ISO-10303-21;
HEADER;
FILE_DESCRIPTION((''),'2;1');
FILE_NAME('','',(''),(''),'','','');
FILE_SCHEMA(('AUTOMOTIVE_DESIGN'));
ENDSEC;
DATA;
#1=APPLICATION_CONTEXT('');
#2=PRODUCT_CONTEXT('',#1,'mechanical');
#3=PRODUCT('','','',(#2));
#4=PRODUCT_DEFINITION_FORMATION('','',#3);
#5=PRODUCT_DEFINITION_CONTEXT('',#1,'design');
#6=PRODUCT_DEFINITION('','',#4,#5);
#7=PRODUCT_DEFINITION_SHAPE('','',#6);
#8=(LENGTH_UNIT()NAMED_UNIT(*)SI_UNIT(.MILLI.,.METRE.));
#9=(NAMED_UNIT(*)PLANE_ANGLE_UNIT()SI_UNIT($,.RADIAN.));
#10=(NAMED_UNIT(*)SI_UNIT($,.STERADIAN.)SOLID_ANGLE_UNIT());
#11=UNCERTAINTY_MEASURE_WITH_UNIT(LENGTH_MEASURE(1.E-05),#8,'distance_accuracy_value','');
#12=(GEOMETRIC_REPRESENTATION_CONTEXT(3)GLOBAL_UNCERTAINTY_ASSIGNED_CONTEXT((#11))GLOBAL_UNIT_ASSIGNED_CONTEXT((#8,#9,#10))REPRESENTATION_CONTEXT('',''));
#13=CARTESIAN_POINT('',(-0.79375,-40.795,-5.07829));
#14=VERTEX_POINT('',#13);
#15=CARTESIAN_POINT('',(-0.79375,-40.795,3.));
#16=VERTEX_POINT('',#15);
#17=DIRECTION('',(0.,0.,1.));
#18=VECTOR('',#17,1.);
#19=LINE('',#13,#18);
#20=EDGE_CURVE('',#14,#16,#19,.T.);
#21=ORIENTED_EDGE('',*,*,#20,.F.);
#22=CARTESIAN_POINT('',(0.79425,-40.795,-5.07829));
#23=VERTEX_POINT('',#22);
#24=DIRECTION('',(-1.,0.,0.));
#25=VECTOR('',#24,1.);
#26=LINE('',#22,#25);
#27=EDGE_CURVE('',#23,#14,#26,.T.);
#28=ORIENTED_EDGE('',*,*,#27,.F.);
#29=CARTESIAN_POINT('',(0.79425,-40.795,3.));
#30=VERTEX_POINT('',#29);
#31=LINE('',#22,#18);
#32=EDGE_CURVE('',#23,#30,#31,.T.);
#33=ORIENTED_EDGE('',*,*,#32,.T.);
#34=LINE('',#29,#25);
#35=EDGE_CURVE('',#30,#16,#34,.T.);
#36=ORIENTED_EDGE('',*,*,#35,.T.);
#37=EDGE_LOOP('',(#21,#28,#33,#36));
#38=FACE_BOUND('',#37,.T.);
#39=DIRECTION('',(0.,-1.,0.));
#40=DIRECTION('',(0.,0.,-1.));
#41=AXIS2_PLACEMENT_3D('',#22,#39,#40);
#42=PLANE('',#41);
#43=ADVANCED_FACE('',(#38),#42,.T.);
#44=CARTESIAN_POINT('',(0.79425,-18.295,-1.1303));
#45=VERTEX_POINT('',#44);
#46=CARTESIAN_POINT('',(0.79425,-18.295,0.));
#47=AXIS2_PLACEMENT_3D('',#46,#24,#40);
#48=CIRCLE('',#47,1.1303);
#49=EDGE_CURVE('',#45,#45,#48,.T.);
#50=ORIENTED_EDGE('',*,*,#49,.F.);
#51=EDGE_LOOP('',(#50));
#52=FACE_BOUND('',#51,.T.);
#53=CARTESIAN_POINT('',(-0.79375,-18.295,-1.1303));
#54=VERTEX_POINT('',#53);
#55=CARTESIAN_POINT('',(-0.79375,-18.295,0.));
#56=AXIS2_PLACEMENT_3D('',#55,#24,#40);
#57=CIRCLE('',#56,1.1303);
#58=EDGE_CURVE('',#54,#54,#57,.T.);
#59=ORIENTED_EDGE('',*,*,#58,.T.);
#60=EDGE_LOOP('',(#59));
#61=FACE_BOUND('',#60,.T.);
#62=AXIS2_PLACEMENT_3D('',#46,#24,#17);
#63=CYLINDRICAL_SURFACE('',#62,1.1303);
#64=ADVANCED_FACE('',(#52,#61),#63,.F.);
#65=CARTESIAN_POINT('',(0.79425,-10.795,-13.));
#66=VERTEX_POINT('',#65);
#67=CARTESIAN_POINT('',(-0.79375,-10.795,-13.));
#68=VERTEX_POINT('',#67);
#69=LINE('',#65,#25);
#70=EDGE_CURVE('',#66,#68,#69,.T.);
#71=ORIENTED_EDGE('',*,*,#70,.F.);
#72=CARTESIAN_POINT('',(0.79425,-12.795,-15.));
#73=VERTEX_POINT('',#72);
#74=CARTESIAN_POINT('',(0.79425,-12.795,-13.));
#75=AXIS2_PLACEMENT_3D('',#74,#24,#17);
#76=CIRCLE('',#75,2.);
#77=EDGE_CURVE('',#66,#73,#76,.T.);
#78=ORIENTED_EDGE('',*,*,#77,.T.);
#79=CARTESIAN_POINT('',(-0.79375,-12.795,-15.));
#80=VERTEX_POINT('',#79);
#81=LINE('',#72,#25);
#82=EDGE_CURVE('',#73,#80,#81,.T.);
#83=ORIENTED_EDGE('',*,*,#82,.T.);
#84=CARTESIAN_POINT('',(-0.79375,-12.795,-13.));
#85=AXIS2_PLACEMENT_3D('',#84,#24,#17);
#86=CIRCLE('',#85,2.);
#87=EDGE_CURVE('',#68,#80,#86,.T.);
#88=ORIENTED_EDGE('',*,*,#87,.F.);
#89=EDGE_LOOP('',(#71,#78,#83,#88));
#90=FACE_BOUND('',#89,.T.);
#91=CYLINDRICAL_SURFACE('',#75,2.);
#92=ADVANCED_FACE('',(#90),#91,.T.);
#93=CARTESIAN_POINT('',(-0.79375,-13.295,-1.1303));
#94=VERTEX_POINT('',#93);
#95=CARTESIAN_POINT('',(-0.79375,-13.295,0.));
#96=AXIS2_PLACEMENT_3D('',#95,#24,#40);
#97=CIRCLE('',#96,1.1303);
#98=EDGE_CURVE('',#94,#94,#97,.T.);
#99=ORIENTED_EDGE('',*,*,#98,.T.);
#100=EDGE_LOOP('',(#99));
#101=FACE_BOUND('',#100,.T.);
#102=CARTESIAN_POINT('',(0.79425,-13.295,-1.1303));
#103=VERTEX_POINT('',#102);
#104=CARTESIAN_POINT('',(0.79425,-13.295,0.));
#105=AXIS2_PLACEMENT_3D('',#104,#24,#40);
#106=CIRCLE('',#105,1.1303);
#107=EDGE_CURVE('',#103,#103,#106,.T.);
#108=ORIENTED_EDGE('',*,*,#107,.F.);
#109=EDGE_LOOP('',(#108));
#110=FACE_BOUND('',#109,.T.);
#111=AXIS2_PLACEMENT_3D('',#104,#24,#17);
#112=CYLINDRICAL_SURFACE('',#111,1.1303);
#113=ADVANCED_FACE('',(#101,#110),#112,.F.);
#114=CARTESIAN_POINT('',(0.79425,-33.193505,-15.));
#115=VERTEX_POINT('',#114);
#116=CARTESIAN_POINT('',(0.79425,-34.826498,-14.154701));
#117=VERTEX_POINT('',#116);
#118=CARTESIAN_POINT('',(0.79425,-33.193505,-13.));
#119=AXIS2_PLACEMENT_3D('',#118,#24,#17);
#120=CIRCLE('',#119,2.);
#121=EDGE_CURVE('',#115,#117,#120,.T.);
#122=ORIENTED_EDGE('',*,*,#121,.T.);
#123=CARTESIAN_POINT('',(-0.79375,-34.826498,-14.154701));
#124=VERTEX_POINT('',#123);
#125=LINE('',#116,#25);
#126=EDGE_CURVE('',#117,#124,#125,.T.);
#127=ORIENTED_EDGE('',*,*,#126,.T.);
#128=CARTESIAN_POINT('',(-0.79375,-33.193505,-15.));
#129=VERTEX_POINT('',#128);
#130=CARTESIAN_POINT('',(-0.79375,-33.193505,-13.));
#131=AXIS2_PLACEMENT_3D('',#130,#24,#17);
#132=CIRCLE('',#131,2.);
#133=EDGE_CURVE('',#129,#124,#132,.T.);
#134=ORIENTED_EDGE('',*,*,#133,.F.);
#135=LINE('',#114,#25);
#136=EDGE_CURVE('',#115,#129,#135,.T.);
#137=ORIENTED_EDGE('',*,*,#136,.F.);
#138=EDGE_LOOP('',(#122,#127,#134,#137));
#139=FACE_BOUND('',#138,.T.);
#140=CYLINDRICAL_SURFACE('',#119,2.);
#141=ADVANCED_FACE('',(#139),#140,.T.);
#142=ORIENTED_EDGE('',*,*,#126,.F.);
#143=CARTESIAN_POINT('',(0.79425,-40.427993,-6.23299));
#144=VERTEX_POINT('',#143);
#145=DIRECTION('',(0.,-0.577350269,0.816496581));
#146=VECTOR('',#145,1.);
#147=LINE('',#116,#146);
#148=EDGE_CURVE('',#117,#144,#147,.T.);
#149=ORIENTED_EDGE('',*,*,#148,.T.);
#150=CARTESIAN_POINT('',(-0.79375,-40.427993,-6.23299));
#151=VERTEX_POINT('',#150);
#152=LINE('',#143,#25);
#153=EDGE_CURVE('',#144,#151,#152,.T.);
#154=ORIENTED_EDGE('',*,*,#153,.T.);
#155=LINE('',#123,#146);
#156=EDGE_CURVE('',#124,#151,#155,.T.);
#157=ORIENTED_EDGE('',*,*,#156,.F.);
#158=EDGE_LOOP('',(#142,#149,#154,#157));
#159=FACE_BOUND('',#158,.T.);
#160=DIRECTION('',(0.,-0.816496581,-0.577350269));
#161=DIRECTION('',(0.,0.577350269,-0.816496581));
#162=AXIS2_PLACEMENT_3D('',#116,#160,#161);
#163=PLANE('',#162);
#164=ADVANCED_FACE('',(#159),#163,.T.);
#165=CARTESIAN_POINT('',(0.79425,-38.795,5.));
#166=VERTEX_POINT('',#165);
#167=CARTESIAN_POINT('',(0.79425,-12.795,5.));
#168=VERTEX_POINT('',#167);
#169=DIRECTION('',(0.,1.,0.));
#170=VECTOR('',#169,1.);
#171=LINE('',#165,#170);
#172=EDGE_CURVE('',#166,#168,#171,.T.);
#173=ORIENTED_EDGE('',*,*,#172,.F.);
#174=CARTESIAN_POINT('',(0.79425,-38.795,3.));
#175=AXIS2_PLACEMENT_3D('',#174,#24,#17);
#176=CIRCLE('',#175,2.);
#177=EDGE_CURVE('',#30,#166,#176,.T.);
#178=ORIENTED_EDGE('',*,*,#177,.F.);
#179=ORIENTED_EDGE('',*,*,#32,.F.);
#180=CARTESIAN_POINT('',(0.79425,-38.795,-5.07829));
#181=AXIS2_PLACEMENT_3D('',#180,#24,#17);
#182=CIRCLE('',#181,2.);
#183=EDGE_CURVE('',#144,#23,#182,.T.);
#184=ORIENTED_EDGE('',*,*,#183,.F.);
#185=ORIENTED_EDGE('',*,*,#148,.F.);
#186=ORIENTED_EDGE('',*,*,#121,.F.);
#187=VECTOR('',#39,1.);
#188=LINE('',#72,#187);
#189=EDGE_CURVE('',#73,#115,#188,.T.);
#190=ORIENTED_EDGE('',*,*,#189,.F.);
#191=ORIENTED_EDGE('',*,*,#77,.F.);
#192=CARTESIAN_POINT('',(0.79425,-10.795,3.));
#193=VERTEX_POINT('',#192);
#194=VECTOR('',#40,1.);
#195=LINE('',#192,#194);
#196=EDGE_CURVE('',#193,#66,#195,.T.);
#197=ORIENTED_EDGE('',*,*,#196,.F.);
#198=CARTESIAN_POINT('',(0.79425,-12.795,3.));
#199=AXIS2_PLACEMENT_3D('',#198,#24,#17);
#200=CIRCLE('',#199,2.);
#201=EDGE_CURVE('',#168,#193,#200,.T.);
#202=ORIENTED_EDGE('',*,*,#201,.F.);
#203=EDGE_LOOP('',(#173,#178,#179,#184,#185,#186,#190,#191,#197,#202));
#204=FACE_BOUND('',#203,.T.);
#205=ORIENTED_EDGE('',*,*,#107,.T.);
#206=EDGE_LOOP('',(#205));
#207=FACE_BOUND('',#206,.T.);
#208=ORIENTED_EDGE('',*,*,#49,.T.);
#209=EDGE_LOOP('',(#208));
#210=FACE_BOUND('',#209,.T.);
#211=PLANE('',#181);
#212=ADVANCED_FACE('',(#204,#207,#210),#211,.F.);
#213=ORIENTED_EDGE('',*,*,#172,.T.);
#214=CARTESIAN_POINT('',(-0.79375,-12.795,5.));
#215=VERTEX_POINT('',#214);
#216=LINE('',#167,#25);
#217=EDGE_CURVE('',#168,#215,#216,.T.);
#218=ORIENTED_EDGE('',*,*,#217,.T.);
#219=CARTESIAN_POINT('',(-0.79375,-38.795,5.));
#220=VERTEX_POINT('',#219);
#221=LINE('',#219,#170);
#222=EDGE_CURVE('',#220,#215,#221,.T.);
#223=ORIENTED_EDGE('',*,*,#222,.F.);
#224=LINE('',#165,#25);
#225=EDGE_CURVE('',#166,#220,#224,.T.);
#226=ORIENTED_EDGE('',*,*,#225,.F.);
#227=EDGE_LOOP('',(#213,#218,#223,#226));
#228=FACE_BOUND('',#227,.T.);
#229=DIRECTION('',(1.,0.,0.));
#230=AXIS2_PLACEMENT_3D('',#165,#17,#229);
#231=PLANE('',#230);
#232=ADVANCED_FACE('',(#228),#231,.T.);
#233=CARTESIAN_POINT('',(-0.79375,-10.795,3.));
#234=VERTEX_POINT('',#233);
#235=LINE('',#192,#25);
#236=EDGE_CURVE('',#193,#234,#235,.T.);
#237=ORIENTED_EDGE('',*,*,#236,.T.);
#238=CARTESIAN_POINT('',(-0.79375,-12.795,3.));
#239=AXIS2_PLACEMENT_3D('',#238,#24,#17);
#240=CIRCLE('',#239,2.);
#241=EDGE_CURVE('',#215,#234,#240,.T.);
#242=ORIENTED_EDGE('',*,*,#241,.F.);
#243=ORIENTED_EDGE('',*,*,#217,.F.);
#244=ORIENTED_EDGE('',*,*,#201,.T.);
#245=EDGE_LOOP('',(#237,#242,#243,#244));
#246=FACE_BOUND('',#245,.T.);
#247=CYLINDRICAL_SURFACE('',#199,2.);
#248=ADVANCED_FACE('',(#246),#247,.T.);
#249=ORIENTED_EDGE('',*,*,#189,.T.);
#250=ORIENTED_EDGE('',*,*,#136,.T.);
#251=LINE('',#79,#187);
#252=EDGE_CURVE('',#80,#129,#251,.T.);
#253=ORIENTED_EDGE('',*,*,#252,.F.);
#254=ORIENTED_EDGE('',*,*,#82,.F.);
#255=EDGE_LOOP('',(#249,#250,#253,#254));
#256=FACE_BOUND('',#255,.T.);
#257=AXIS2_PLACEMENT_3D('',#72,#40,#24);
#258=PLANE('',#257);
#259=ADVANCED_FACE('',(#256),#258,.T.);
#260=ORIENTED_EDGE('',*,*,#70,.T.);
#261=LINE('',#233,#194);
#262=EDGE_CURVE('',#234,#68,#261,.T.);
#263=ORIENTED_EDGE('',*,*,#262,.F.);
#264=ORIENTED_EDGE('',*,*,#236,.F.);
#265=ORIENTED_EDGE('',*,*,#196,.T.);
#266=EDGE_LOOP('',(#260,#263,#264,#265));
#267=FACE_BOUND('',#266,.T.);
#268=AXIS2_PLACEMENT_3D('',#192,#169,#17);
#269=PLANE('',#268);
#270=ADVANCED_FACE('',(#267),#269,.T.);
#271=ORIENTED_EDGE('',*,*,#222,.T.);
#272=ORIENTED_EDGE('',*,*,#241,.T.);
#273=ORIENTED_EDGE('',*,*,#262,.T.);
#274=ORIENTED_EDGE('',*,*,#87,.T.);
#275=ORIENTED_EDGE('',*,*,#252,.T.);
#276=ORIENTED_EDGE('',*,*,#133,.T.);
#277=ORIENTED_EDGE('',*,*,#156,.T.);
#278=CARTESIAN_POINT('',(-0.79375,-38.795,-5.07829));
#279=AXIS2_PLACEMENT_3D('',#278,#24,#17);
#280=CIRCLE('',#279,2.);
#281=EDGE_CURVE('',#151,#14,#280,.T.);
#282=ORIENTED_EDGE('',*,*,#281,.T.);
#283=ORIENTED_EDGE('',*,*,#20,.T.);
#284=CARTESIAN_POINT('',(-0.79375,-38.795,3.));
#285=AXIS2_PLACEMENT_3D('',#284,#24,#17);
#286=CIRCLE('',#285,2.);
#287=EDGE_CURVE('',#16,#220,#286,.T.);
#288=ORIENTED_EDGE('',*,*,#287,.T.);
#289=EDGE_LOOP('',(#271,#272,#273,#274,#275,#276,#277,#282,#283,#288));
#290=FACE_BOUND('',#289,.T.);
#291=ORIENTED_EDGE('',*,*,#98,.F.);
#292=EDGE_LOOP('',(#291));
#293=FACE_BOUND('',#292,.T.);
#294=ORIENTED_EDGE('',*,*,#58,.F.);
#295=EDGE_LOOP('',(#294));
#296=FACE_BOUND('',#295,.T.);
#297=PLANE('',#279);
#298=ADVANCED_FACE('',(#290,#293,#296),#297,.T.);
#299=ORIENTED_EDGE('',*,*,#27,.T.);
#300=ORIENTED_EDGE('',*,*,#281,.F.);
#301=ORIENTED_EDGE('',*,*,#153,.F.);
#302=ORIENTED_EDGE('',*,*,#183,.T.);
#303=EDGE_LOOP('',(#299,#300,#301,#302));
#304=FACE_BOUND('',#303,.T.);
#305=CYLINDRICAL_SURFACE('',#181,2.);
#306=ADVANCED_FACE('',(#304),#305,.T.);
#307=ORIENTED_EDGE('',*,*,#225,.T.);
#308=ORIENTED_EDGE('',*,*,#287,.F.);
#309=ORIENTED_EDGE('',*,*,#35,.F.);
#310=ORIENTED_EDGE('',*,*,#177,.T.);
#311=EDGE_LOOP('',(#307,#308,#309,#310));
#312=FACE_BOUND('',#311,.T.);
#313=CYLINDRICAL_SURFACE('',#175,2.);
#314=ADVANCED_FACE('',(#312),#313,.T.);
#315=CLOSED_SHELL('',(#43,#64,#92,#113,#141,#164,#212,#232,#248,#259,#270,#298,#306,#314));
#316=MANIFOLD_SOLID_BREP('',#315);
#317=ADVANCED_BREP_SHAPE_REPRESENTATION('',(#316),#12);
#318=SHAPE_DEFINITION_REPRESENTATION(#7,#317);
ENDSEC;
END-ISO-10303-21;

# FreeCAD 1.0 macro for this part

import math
import FreeCAD as App
import Part
import Sketcher
Q = App.Units.Quantity

doc = App.newDocument("Part")
body = doc.addObject("PartDesign::Body", "Body")

# Sketch on YZ plane
sketch1 = body.newObject("Sketcher::SketchObject", "Sketch")
sketch1.AttachmentSupport = (doc.getObject("YZ_Plane"), [""])
sketch1.MapMode = "FlatFace"
sketch1.AttachmentOffset = App.Placement(App.Vector(0, 0, -0.79375), App.Rotation())
sketch1.addGeometry([
    Part.LineSegment(App.Vector(-40.795, -5.07829, 0), App.Vector(-40.795, 3, 0)),  # 0
    Part.ArcOfCircle(Part.Circle(App.Vector(-38.795, 3, 0), App.Vector(0, 0, 1), 2), math.radians(90), math.radians(180)),  # 1
    Part.LineSegment(App.Vector(-38.795, 5, 0), App.Vector(-12.795, 5, 0)),  # 2
    Part.ArcOfCircle(Part.Circle(App.Vector(-12.795, 3, 0), App.Vector(0, 0, 1), 2), math.radians(0), math.radians(90)),  # 3
    Part.LineSegment(App.Vector(-10.795, 3, 0), App.Vector(-10.795, -13, 0)),  # 4
    Part.ArcOfCircle(Part.Circle(App.Vector(-12.795, -13, 0), App.Vector(0, 0, 1), 2), math.radians(-90), math.radians(0)),  # 5
    Part.LineSegment(App.Vector(-12.795, -15, 0), App.Vector(-33.193505, -15, 0)),  # 6
    Part.ArcOfCircle(Part.Circle(App.Vector(-33.193505, -13, 0), App.Vector(0, 0, 1), 2), math.radians(-144.73561), math.radians(-90)),  # 7
    Part.LineSegment(App.Vector(-34.826498, -14.154701, 0), App.Vector(-40.427993, -6.23299, 0)),  # 8
    Part.ArcOfCircle(Part.Circle(App.Vector(-38.795, -5.07829, 0), App.Vector(0, 0, 1), 2), math.radians(180), math.radians(215.26439)),  # 9
    Part.Circle(App.Vector(-13.295, 0, 0), App.Vector(0, 0, 1), 1.1303),  # 10
    Part.Circle(App.Vector(-18.295, 0, 0), App.Vector(0, 0, 1), 1.1303),  # 11
], False)
sketch1.addConstraint([
    Sketcher.Constraint("Tangent", 0, 2, 1, 2),
    Sketcher.Constraint("Tangent", 1, 1, 2, 1),
    Sketcher.Constraint("Tangent", 2, 2, 3, 2),
    Sketcher.Constraint("Tangent", 3, 1, 4, 1),
    Sketcher.Constraint("Tangent", 4, 2, 5, 2),
    Sketcher.Constraint("Tangent", 5, 1, 6, 1),
    Sketcher.Constraint("Tangent", 6, 2, 7, 2),
    Sketcher.Constraint("Tangent", 7, 1, 8, 1),
    Sketcher.Constraint("Tangent", 8, 2, 9, 2),
    Sketcher.Constraint("Tangent", 9, 1, 0, 1),
    Sketcher.Constraint("Vertical", 0),
    Sketcher.Constraint("Horizontal", 2),
    Sketcher.Constraint("Vertical", 4),
    Sketcher.Constraint("Horizontal", 6),
    Sketcher.Constraint("Equal", 1, 3),
    Sketcher.Constraint("Equal", 3, 5),
    Sketcher.Constraint("Equal", 5, 7),
    Sketcher.Constraint("Equal", 7, 9),
    Sketcher.Constraint("Equal", 10, 11),
    Sketcher.Constraint("PointOnObject", 10, 3, -1),
    Sketcher.Constraint("PointOnObject", 11, 3, -1),
    Sketcher.Constraint("Radius", 1, Q("2 mm")),
    Sketcher.Constraint("DistanceX", 2, 1, 2, 2, Q("26 mm")),
    Sketcher.Constraint("DistanceY", 4, 2, 4, 1, Q("16 mm")),
    Sketcher.Constraint("DistanceY", -1, 1, 1, 3, Q("3 mm")),
    Sketcher.Constraint("DistanceX", 11, 3, 10, 3, Q("5 mm")),
    Sketcher.Constraint("Diameter", 10, Q("2.2606 mm")),
    Sketcher.Constraint("DistanceX", 10, 3, 3, 3, Q("0.5 mm")),
    Sketcher.Constraint("DistanceX", 1, 3, -1, 1, Q("38.795 mm")),
    Sketcher.Constraint("DistanceY", 0, 1, 0, 2, Q("8.07829 mm")),
    Sketcher.Constraint("DistanceY", 7, 1, -1, 1, Q("14.154701 mm")),
])
pad1 = body.newObject("PartDesign::Pad", "Pad")
pad1.Profile = sketch1
pad1.Length = 1.588

doc.recompute()
